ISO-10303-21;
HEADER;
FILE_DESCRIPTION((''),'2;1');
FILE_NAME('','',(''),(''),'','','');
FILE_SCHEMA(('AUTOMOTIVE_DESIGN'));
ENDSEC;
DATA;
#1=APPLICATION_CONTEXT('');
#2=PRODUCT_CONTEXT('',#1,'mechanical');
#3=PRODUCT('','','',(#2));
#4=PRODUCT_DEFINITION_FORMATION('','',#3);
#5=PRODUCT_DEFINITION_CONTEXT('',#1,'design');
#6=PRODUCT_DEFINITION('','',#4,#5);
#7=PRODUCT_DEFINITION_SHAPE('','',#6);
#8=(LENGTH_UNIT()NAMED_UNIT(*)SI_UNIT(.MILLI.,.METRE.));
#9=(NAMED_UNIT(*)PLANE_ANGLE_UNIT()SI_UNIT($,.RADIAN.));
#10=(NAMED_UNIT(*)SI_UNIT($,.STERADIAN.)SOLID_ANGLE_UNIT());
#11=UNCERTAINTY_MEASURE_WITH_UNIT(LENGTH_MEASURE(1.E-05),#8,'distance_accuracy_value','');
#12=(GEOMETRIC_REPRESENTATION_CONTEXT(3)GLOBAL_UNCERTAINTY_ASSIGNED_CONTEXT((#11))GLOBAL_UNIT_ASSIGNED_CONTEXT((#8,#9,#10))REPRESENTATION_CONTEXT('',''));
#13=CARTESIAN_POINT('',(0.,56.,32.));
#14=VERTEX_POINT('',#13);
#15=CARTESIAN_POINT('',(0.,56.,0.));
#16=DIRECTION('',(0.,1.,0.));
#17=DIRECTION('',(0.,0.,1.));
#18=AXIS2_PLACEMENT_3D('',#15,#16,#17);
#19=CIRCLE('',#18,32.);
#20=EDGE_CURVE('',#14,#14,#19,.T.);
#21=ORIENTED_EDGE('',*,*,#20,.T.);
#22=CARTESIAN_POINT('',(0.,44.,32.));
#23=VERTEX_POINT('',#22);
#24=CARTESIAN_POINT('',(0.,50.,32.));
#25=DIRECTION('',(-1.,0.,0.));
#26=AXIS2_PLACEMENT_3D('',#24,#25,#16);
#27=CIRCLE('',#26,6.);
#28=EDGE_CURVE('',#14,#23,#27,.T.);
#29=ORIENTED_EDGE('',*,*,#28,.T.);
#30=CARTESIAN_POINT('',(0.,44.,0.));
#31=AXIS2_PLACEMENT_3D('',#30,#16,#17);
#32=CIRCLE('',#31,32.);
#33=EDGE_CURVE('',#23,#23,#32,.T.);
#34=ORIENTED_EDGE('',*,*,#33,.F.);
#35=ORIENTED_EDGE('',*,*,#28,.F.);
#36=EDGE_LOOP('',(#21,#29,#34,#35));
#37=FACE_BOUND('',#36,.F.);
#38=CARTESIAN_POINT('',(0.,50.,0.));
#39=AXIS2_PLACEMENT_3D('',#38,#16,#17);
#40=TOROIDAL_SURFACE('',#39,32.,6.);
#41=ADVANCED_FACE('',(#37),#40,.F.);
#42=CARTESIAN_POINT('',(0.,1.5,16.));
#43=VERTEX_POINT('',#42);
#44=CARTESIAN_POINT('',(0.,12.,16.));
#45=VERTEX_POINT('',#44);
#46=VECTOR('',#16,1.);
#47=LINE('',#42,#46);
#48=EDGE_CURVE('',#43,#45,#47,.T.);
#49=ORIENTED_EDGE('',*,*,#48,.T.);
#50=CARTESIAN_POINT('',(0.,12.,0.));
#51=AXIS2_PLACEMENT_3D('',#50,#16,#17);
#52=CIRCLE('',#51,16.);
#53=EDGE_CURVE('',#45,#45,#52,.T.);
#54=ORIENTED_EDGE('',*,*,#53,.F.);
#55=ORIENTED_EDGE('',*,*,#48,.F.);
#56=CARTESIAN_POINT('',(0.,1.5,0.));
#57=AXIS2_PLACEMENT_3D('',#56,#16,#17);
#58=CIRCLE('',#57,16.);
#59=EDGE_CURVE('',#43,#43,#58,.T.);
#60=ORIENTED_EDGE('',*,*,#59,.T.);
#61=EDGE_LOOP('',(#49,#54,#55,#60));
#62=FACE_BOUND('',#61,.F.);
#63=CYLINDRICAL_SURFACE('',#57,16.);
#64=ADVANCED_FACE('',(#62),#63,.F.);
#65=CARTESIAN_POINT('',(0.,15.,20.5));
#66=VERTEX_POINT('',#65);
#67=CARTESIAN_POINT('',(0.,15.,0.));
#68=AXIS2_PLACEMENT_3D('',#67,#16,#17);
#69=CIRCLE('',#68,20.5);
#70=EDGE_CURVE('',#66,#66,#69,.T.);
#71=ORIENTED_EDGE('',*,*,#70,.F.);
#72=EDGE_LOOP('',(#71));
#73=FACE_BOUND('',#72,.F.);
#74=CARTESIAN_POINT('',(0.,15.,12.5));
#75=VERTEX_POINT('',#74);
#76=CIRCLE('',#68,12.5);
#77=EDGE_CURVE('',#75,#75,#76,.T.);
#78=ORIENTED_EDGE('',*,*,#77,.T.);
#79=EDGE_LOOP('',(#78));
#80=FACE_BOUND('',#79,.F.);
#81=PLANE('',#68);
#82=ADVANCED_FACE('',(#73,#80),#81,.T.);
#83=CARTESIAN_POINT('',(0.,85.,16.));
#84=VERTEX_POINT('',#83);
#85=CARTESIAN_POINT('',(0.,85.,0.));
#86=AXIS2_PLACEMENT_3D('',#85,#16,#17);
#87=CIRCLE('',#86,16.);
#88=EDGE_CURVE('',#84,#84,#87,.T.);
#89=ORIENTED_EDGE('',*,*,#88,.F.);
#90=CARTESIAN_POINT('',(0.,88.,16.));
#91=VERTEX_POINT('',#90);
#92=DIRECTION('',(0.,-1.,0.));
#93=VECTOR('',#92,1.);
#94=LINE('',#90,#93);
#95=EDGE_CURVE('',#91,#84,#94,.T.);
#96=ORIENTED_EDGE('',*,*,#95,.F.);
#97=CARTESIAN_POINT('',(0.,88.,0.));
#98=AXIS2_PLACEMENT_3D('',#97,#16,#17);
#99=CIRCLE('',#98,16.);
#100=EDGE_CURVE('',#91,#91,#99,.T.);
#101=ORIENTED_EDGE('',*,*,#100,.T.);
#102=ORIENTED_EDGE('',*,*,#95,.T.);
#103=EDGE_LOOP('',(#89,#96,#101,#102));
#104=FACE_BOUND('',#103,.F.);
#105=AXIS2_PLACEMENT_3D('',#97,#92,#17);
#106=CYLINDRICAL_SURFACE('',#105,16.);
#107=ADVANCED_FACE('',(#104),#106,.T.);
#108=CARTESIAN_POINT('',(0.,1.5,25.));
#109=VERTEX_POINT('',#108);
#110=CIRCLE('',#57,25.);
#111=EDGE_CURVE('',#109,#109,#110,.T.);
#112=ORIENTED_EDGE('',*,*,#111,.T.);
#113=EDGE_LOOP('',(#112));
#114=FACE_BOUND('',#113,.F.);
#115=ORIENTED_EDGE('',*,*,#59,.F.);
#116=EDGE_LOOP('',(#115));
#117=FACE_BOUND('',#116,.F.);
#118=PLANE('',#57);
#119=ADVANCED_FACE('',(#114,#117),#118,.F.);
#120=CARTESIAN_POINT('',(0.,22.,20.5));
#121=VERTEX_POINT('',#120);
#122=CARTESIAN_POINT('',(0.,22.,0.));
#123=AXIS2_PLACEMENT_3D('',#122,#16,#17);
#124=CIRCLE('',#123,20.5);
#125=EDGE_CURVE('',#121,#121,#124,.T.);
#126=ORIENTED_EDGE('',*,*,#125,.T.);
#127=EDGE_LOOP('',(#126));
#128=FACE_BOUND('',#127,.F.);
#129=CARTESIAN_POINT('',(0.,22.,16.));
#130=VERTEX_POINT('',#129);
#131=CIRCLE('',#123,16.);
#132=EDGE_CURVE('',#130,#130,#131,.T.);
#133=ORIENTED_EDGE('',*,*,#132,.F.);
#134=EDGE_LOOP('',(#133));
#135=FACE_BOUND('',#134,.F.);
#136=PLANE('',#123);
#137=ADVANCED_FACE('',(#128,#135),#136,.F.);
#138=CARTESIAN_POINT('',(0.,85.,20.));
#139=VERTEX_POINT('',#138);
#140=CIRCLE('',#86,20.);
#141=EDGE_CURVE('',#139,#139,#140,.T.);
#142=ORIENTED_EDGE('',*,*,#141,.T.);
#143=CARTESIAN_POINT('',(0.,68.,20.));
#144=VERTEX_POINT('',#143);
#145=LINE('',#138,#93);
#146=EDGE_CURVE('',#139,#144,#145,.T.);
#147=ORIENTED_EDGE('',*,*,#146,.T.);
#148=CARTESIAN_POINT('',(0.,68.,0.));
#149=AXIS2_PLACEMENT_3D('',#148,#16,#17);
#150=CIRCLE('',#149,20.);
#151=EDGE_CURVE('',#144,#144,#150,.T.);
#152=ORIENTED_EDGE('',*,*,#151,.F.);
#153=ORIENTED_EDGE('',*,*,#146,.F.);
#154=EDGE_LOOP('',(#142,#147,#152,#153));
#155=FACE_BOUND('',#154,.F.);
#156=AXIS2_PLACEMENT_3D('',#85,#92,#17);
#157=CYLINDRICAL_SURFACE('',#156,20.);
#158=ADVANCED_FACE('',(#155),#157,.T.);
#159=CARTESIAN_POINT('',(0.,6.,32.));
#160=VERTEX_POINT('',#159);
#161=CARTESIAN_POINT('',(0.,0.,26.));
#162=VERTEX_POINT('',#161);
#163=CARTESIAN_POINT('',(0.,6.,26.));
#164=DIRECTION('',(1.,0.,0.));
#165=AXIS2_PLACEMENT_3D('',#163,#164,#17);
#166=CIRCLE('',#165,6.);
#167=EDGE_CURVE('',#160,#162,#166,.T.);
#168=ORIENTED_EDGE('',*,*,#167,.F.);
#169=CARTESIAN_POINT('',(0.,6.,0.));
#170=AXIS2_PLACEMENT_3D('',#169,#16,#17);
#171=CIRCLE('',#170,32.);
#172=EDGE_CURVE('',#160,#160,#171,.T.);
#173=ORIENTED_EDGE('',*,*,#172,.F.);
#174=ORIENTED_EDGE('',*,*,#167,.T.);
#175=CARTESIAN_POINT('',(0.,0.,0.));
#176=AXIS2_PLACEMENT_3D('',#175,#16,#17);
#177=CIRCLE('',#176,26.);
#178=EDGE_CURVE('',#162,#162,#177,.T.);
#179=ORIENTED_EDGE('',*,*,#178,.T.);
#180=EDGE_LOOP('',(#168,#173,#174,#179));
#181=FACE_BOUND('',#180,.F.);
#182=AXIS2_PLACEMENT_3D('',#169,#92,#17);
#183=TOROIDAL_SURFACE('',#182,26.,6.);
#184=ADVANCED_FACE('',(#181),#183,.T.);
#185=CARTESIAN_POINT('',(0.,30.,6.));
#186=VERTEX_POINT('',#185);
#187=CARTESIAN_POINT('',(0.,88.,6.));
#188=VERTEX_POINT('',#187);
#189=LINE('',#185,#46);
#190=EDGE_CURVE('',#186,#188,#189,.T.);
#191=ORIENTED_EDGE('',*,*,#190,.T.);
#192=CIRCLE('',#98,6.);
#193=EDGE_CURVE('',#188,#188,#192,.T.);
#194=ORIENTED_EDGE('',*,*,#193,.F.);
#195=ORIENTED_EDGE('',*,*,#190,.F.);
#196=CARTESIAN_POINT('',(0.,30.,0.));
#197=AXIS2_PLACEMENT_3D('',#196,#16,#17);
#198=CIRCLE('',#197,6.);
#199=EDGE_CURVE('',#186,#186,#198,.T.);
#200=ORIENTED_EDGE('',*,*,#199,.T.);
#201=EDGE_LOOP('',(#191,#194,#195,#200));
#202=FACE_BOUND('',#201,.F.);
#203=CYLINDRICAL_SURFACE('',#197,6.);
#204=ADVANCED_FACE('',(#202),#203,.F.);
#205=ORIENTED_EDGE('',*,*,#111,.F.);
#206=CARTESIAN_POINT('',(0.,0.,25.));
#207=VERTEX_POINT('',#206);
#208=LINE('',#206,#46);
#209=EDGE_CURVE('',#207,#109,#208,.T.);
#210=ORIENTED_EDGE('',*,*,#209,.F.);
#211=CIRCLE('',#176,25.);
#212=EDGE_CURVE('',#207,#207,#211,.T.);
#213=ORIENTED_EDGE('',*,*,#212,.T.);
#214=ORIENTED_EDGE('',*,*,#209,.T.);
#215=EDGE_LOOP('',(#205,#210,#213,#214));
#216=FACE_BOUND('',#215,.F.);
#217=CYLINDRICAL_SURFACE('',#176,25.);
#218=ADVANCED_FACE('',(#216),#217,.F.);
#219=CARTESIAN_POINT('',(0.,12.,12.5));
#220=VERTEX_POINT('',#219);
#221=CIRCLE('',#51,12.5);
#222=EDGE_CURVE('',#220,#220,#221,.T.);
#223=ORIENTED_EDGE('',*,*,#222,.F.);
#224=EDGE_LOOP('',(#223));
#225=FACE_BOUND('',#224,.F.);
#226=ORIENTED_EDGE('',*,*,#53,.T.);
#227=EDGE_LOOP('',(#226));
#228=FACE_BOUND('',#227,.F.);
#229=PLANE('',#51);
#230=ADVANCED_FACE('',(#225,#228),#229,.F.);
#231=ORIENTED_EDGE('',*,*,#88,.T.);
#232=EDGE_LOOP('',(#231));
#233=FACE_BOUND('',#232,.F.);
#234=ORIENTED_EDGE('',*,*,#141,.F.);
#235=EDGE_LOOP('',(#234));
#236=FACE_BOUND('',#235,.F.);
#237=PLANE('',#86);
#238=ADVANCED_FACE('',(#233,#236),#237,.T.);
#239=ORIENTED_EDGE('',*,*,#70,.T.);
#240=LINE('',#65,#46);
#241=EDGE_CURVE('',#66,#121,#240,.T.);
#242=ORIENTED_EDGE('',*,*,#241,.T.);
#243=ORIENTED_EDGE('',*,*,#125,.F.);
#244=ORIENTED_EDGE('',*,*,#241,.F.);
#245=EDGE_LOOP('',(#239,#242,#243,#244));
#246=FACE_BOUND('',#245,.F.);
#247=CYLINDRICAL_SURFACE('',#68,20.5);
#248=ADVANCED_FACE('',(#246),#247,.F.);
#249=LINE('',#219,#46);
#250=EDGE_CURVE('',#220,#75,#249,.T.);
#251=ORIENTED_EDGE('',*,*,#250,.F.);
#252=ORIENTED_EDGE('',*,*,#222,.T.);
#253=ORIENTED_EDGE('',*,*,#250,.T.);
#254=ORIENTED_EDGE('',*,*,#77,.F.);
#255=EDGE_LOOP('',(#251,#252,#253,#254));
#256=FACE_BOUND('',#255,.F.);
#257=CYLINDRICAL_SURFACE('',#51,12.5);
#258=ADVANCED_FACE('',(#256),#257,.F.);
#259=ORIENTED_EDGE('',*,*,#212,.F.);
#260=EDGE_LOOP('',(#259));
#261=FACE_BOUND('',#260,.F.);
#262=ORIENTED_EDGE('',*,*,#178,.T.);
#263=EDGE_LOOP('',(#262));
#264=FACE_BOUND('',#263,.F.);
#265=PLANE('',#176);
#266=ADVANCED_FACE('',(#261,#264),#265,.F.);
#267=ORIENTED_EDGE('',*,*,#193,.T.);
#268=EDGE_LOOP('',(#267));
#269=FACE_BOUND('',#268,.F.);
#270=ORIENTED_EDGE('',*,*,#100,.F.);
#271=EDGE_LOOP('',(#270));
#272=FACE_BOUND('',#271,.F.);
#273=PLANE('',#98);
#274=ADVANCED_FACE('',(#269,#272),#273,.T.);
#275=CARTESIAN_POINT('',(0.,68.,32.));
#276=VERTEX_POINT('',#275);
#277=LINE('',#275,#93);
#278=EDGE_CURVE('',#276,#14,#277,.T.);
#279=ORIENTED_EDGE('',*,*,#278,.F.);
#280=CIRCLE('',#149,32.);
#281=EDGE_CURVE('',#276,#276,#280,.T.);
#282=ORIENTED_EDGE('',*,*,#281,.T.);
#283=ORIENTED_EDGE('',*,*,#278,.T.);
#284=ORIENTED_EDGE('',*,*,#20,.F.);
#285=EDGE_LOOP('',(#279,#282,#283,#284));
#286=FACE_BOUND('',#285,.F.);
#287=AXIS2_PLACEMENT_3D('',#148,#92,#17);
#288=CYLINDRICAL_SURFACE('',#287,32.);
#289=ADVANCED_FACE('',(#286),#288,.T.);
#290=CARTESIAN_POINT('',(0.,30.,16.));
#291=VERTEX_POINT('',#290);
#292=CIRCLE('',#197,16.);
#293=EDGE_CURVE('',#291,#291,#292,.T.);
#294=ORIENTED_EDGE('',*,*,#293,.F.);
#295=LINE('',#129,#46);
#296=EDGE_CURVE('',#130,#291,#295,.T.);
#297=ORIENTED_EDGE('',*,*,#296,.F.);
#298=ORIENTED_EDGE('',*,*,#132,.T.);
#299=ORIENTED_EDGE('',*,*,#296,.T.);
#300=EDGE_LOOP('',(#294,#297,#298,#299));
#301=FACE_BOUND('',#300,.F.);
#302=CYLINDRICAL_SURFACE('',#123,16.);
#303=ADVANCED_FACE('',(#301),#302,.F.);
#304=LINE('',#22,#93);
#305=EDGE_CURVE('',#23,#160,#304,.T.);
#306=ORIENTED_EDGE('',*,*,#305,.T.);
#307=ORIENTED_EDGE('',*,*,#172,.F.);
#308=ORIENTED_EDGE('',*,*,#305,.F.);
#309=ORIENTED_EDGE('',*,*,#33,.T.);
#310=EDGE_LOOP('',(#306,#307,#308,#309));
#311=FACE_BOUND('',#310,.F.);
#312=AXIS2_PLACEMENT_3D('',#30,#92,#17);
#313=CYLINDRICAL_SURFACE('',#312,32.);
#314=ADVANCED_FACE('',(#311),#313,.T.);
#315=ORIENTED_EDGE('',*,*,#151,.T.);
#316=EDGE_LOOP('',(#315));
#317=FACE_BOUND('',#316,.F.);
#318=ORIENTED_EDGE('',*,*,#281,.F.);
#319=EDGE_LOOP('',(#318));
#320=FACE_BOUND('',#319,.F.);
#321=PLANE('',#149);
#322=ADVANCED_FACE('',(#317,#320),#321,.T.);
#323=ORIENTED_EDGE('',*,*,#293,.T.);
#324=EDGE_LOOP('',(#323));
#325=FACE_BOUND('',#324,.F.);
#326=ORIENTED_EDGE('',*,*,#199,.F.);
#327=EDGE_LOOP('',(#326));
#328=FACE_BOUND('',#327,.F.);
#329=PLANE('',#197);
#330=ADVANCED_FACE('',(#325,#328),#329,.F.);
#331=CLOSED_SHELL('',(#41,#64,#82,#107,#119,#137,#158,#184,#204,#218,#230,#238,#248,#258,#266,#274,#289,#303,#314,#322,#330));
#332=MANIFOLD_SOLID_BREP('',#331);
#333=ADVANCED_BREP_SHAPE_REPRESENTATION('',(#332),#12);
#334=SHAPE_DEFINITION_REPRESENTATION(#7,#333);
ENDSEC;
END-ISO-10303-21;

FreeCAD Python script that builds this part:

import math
import FreeCAD as App
import Part
import Sketcher
from FreeCAD import Vector


def edges_at(feature, points):
    """Names of the edges that pass closest to the given points."""
    edges = feature.Shape.Edges
    near = lambda p: min(range(len(edges)), key=lambda i: edges[i].distToShape(Part.Vertex(*p))[0])
    return sorted({f"Edge{near(p) + 1}" for p in points})

doc = App.newDocument("Part")
body = doc.addObject("PartDesign::Body", "Body")

sketch1 = doc.addObject("Sketcher::SketchObject", "Sketch")
body.addObject(sketch1)
sketch1.AttachmentSupport = (doc.YZ_Plane, [""])
sketch1.MapMode = "FlatFace"
sketch1.addGeometry([
    Part.LineSegment(Vector(30, 6, 0), Vector(88, 6, 0)),
    Part.LineSegment(Vector(88, 6, 0), Vector(88, 16, 0)),
    Part.LineSegment(Vector(88, 16, 0), Vector(85, 16, 0)),
    Part.LineSegment(Vector(85, 16, 0), Vector(85, 20, 0)),
    Part.LineSegment(Vector(85, 20, 0), Vector(68, 20, 0)),
    Part.LineSegment(Vector(68, 20, 0), Vector(68, 32, 0)),
    Part.LineSegment(Vector(68, 32, 0), Vector(56, 32, 0)),
    Part.ArcOfCircle(Part.Circle(Vector(50, 32, 0), Vector(0, 0, 1), 6), math.radians(180), math.radians(360)),
    Part.LineSegment(Vector(44, 32, 0), Vector(0, 32, 0)),
    Part.LineSegment(Vector(0, 32, 0), Vector(0, 25, 0)),
    Part.LineSegment(Vector(0, 25, 0), Vector(1.5, 25, 0)),
    Part.LineSegment(Vector(1.5, 25, 0), Vector(1.5, 16, 0)),
    Part.LineSegment(Vector(1.5, 16, 0), Vector(12, 16, 0)),
    Part.LineSegment(Vector(12, 16, 0), Vector(12, 12.5, 0)),
    Part.LineSegment(Vector(12, 12.5, 0), Vector(15, 12.5, 0)),
    Part.LineSegment(Vector(15, 12.5, 0), Vector(15, 20.5, 0)),
    Part.LineSegment(Vector(15, 20.5, 0), Vector(22, 20.5, 0)),
    Part.LineSegment(Vector(22, 20.5, 0), Vector(22, 16, 0)),
    Part.LineSegment(Vector(22, 16, 0), Vector(30, 16, 0)),
    Part.LineSegment(Vector(30, 16, 0), Vector(30, 6, 0)),
], False)
sketch1.addConstraint([
    Sketcher.Constraint("Coincident", 0, 2, 1, 1),
    Sketcher.Constraint("Coincident", 1, 2, 2, 1),
    Sketcher.Constraint("Coincident", 2, 2, 3, 1),
    Sketcher.Constraint("Coincident", 3, 2, 4, 1),
    Sketcher.Constraint("Coincident", 4, 2, 5, 1),
    Sketcher.Constraint("Coincident", 5, 2, 6, 1),
    Sketcher.Constraint("Coincident", 6, 2, 7, 2),
    Sketcher.Constraint("Coincident", 7, 1, 8, 1),
    Sketcher.Constraint("Coincident", 8, 2, 9, 1),
    Sketcher.Constraint("Coincident", 9, 2, 10, 1),
    Sketcher.Constraint("Coincident", 10, 2, 11, 1),
    Sketcher.Constraint("Coincident", 11, 2, 12, 1),
    Sketcher.Constraint("Coincident", 12, 2, 13, 1),
    Sketcher.Constraint("Coincident", 13, 2, 14, 1),
    Sketcher.Constraint("Coincident", 14, 2, 15, 1),
    Sketcher.Constraint("Coincident", 15, 2, 16, 1),
    Sketcher.Constraint("Coincident", 16, 2, 17, 1),
    Sketcher.Constraint("Coincident", 17, 2, 18, 1),
    Sketcher.Constraint("Coincident", 18, 2, 19, 1),
    Sketcher.Constraint("Coincident", 19, 2, 0, 1),
    Sketcher.Constraint("Horizontal", 0),
    Sketcher.Constraint("Vertical", 1),
    Sketcher.Constraint("Horizontal", 2),
    Sketcher.Constraint("Vertical", 3),
    Sketcher.Constraint("Horizontal", 4),
    Sketcher.Constraint("Vertical", 5),
    Sketcher.Constraint("Horizontal", 6),
    Sketcher.Constraint("Horizontal", 8),
    Sketcher.Constraint("Vertical", 9),
    Sketcher.Constraint("Horizontal", 10),
    Sketcher.Constraint("Vertical", 11),
    Sketcher.Constraint("Horizontal", 12),
    Sketcher.Constraint("Vertical", 13),
    Sketcher.Constraint("Horizontal", 14),
    Sketcher.Constraint("Vertical", 15),
    Sketcher.Constraint("Horizontal", 16),
    Sketcher.Constraint("Vertical", 17),
    Sketcher.Constraint("Horizontal", 18),
    Sketcher.Constraint("Vertical", 19),
    Sketcher.Constraint("PointOnObject", 8, 2, -2),
    Sketcher.Constraint("Horizontal", 7, 3, 5, 2),
    Sketcher.Constraint("Horizontal", 6, 2, 7, 1),
    Sketcher.Constraint("Horizontal", 2, 2, 11, 2),
    Sketcher.Constraint("Horizontal", 12, 2, 17, 2),
    Sketcher.Constraint("Equal", 2, 14),
    Sketcher.Constraint("Equal", 6, 5),
    Sketcher.Constraint("Equal", 16, 9),
    Sketcher.Constraint("Equal", 18, 15),
    Sketcher.Constraint("Radius", 7, 6.0),
    Sketcher.Constraint("DistanceX", 0, 1, 0, 2, 58.0),
    Sketcher.Constraint("DistanceX", 2, 2, 2, 1, 3.0),
    Sketcher.Constraint("DistanceX", 4, 2, 4, 1, 17.0),
    Sketcher.Constraint("DistanceX", 6, 2, 6, 1, 12.0),
    Sketcher.Constraint("DistanceX", 8, 2, 8, 1, 44.0),
    Sketcher.Constraint("DistanceX", 16, 1, 16, 2, 7.0),
    Sketcher.Constraint("DistanceX", 18, 1, 18, 2, 8.0),
    Sketcher.Constraint("DistanceY", 1, 1, 1, 2, 10.0),
    Sketcher.Constraint("DistanceY", 3, 1, 3, 2, 4.0),
    Sketcher.Constraint("DistanceX", 10, 1, 10, 2, 1.5),
    Sketcher.Constraint("DistanceY", 13, 2, 13, 1, 3.5),
    Sketcher.Constraint("DistanceY", -1, 1, 7, 3, 32.0),
])
revolution = doc.addObject("PartDesign::Revolution", "Revolution")
body.addObject(revolution)
revolution.Profile = sketch1
revolution.ReferenceAxis = (sketch1, ["H_Axis"])
revolution.Angle = 360
doc.recompute()

fillet = doc.addObject("PartDesign::Fillet", "Fillet")
body.addObject(fillet)
fillet.Base = (revolution, edges_at(revolution, [(0, 0, -32)]))
fillet.Radius = 6

doc.recompute()
